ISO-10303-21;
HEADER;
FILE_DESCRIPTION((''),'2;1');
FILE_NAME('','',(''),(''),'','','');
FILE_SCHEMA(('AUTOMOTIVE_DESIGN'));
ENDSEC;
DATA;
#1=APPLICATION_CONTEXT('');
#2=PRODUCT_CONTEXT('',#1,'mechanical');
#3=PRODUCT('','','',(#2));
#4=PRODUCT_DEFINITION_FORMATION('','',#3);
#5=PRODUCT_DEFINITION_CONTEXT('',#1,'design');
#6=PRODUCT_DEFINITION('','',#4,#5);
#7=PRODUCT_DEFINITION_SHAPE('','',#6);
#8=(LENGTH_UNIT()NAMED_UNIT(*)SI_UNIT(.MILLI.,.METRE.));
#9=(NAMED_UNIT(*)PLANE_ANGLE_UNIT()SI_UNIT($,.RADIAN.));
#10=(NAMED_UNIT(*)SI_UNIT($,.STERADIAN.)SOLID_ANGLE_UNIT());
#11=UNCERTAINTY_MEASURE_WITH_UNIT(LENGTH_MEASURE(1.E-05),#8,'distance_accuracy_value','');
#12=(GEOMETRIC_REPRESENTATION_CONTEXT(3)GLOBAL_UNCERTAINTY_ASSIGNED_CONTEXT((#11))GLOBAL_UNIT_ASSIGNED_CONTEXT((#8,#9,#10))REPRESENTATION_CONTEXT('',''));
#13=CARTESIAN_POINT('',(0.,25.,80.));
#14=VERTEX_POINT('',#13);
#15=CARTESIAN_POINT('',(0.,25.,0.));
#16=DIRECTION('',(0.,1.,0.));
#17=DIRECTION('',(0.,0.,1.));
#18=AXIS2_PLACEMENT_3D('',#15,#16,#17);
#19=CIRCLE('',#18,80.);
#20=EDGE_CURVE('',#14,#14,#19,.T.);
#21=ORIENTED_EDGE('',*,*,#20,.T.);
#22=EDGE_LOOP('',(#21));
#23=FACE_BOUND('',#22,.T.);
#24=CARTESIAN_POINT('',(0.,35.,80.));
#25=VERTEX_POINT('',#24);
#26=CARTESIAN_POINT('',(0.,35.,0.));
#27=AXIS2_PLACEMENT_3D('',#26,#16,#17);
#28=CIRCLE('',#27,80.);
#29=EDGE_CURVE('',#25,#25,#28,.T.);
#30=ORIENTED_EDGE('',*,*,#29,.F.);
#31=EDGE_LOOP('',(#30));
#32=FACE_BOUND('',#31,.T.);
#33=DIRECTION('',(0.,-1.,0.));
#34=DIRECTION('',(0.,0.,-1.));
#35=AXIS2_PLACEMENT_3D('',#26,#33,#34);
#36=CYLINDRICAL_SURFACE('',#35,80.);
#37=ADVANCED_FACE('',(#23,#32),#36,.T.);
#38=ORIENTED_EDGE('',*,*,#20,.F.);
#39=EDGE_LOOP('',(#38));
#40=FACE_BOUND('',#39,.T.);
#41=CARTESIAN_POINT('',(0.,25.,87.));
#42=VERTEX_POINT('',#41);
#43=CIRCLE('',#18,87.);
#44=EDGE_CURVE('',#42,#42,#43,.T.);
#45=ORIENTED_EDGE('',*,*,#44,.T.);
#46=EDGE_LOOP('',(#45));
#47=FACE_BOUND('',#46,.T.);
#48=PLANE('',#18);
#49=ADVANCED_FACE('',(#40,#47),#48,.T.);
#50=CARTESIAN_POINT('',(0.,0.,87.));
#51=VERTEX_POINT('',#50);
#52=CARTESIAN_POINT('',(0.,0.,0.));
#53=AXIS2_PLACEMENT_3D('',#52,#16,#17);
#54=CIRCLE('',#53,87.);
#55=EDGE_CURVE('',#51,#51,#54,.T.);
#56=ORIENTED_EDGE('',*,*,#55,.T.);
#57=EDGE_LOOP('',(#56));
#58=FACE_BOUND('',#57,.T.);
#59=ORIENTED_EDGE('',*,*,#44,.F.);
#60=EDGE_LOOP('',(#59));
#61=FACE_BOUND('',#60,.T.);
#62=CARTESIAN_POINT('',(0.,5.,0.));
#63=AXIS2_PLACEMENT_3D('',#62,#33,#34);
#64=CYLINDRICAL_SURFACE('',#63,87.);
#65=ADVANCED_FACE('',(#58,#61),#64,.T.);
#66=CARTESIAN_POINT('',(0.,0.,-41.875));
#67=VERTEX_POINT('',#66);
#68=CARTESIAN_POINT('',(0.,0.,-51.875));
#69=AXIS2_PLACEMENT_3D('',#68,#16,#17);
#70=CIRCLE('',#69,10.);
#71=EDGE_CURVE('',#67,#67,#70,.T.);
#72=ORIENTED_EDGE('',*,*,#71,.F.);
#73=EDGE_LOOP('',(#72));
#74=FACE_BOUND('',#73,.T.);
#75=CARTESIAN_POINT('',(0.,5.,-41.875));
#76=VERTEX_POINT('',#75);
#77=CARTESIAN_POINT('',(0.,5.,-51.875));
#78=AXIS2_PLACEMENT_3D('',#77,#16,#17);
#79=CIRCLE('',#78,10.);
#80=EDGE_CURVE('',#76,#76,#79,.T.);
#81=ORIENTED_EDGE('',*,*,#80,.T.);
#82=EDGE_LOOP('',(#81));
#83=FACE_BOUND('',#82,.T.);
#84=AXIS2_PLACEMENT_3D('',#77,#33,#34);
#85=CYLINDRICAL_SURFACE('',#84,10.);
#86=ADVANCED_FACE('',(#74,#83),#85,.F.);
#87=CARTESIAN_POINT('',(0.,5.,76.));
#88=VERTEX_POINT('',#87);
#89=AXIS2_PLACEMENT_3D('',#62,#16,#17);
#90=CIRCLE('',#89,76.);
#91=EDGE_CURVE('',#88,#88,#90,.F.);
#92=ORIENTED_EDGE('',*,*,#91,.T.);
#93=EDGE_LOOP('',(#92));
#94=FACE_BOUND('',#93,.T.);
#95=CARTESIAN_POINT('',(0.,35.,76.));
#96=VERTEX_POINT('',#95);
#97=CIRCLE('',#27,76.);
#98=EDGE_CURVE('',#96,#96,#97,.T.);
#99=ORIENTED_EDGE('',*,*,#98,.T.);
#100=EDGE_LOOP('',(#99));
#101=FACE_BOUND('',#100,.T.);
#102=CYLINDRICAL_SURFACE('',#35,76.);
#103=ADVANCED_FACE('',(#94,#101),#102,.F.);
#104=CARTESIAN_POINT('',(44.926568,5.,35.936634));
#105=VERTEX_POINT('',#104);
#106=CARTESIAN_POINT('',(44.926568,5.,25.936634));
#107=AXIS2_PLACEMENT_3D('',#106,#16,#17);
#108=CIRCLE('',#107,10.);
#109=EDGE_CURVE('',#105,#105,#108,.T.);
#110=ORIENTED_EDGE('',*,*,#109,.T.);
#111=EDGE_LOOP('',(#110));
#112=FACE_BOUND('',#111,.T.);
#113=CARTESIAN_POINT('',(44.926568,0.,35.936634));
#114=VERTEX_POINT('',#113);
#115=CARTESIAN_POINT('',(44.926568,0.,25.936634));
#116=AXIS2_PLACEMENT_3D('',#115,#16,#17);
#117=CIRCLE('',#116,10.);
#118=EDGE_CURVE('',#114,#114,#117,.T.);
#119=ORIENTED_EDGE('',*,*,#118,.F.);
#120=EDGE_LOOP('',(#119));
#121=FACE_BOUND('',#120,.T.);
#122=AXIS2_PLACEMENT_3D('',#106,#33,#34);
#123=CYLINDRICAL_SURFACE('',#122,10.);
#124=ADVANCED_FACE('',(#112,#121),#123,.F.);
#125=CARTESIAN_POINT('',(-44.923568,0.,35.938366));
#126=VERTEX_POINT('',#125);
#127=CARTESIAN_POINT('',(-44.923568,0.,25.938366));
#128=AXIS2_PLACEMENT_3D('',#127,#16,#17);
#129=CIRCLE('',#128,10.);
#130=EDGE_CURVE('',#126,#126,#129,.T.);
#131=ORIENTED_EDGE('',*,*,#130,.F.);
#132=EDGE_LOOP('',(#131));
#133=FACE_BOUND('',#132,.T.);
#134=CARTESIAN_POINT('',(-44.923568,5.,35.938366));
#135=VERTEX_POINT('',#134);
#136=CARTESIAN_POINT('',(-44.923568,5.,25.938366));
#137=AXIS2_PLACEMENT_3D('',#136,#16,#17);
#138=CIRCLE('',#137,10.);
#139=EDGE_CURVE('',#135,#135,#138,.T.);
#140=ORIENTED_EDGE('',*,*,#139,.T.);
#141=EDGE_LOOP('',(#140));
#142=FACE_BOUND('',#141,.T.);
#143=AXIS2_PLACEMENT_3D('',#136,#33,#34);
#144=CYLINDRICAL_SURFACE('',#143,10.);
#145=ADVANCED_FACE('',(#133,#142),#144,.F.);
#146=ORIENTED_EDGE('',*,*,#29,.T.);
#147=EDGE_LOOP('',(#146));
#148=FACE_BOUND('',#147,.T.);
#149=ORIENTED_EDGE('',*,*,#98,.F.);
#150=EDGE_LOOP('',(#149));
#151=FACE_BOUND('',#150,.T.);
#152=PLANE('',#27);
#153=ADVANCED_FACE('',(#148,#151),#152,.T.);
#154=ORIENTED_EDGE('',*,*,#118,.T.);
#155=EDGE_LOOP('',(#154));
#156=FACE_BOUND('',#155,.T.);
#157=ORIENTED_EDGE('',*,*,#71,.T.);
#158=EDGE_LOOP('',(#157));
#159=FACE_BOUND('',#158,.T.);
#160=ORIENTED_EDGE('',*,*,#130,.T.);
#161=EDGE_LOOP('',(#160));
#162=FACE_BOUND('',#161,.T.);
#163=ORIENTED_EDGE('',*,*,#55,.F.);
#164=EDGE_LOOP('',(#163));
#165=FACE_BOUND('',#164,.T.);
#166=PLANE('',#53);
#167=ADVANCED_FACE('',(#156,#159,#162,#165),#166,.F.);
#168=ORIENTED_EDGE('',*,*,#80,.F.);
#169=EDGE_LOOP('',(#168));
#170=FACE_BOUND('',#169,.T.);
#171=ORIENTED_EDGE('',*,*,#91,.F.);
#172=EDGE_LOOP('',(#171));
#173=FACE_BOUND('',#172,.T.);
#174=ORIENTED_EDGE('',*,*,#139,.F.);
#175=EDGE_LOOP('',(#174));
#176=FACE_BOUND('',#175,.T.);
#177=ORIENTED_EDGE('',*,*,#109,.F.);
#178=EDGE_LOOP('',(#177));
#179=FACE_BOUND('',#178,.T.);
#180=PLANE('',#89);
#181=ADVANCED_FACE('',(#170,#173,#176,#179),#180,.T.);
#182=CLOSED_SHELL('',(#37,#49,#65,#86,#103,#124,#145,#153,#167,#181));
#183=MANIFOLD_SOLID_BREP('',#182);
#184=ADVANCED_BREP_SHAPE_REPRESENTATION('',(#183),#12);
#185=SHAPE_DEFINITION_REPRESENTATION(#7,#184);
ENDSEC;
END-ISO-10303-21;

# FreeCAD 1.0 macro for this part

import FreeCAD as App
import Part
import Sketcher

V = App.Vector
Q = App.Units.Quantity

doc = App.newDocument("Part")
body = doc.addObject("PartDesign::Body", "Body")

# Sketch on XZ plane
sketch1 = body.newObject("Sketcher::SketchObject", "Sketch")
sketch1.AttachmentSupport = (doc.getObject("XZ_Plane"), [""])
sketch1.MapMode = "FlatFace"
sketch1.addGeometry(Part.Circle(V(0, 0, 0), V(0, 0, 1), 87), False)
sketch1.addGeometry(Part.Circle(V(0, -52, 0), V(0, 0, 1), 10), False)
sketch1.addGeometry(Part.Circle(V(-45, 26, 0), V(0, 0, 1), 10), False)
sketch1.addGeometry(Part.Circle(V(45, 26, 0), V(0, 0, 1), 10), False)
sketch1.addConstraint(Sketcher.Constraint("Coincident", 0, 3, -1, 1))
sketch1.addConstraint(Sketcher.Constraint("Equal", 1, 2))
sketch1.addConstraint(Sketcher.Constraint("Equal", 2, 3))
sketch1.addConstraint(Sketcher.Constraint("PointOnObject", 1, 3, -2))
sketch1.addConstraint(Sketcher.Constraint("Diameter", 0, Q("174 mm")))
sketch1.addConstraint(Sketcher.Constraint("Diameter", 1, Q("20 mm")))
sketch1.addConstraint(Sketcher.Constraint("DistanceY", 1, 3, -1, 1, Q("51.875 mm")))
sketch1.addConstraint(Sketcher.Constraint("DistanceX", 2, 3, -1, 1, Q("44.923568 mm")))
sketch1.addConstraint(Sketcher.Constraint("DistanceY", -1, 1, 2, 3, Q("25.938366 mm")))
sketch1.addConstraint(Sketcher.Constraint("DistanceX", -1, 1, 3, 3, Q("44.926568 mm")))
sketch1.addConstraint(Sketcher.Constraint("DistanceY", -1, 1, 3, 3, Q("25.936634 mm")))
pad1 = body.newObject("PartDesign::Pad", "Pad")
pad1.Profile = sketch1
pad1.Length = 5
pad1.Reversed = True

# Sketch on XZ plane
sketch2 = body.newObject("Sketcher::SketchObject", "Sketch001")
sketch2.AttachmentSupport = (doc.getObject("XZ_Plane"), [""])
sketch2.MapMode = "FlatFace"
sketch2.AttachmentOffset = App.Placement(V(0, 0, -5), App.Rotation())
sketch2.addGeometry(Part.Circle(V(0, 0, 0), V(0, 0, 1), 80), False)
sketch2.addGeometry(Part.Circle(V(0, 0, 0), V(0, 0, 1), 76), False)
sketch2.addConstraint(Sketcher.Constraint("Coincident", 0, 3, -1, 1))
sketch2.addConstraint(Sketcher.Constraint("Coincident", 1, 3, -1, 1))
sketch2.addConstraint(Sketcher.Constraint("Diameter", 0, Q("160 mm")))
sketch2.addConstraint(Sketcher.Constraint("Diameter", 1, Q("152 mm")))
pad2 = body.newObject("PartDesign::Pad", "Pad001")
pad2.Profile = sketch2
pad2.Length = 30
pad2.Reversed = True

# Sketch on XZ plane
sketch3 = body.newObject("Sketcher::SketchObject", "Sketch002")
sketch3.AttachmentSupport = (doc.getObject("XZ_Plane"), [""])
sketch3.MapMode = "FlatFace"
sketch3.AttachmentOffset = App.Placement(V(0, 0, -5), App.Rotation())
sketch3.addGeometry(Part.Circle(V(0, 0, 0), V(0, 0, 1), 87), False)
sketch3.addGeometry(Part.Circle(V(0, 0, 0), V(0, 0, 1), 80), False)
sketch3.addConstraint(Sketcher.Constraint("Coincident", 0, 3, -1, 1))
sketch3.addConstraint(Sketcher.Constraint("Coincident", 1, 3, -1, 1))
sketch3.addConstraint(Sketcher.Constraint("Diameter", 0, Q("174 mm")))
sketch3.addConstraint(Sketcher.Constraint("Diameter", 1, Q("160 mm")))
pad3 = body.newObject("PartDesign::Pad", "Pad002")
pad3.Profile = sketch3
pad3.Length = 20
pad3.Reversed = True

doc.recompute()
